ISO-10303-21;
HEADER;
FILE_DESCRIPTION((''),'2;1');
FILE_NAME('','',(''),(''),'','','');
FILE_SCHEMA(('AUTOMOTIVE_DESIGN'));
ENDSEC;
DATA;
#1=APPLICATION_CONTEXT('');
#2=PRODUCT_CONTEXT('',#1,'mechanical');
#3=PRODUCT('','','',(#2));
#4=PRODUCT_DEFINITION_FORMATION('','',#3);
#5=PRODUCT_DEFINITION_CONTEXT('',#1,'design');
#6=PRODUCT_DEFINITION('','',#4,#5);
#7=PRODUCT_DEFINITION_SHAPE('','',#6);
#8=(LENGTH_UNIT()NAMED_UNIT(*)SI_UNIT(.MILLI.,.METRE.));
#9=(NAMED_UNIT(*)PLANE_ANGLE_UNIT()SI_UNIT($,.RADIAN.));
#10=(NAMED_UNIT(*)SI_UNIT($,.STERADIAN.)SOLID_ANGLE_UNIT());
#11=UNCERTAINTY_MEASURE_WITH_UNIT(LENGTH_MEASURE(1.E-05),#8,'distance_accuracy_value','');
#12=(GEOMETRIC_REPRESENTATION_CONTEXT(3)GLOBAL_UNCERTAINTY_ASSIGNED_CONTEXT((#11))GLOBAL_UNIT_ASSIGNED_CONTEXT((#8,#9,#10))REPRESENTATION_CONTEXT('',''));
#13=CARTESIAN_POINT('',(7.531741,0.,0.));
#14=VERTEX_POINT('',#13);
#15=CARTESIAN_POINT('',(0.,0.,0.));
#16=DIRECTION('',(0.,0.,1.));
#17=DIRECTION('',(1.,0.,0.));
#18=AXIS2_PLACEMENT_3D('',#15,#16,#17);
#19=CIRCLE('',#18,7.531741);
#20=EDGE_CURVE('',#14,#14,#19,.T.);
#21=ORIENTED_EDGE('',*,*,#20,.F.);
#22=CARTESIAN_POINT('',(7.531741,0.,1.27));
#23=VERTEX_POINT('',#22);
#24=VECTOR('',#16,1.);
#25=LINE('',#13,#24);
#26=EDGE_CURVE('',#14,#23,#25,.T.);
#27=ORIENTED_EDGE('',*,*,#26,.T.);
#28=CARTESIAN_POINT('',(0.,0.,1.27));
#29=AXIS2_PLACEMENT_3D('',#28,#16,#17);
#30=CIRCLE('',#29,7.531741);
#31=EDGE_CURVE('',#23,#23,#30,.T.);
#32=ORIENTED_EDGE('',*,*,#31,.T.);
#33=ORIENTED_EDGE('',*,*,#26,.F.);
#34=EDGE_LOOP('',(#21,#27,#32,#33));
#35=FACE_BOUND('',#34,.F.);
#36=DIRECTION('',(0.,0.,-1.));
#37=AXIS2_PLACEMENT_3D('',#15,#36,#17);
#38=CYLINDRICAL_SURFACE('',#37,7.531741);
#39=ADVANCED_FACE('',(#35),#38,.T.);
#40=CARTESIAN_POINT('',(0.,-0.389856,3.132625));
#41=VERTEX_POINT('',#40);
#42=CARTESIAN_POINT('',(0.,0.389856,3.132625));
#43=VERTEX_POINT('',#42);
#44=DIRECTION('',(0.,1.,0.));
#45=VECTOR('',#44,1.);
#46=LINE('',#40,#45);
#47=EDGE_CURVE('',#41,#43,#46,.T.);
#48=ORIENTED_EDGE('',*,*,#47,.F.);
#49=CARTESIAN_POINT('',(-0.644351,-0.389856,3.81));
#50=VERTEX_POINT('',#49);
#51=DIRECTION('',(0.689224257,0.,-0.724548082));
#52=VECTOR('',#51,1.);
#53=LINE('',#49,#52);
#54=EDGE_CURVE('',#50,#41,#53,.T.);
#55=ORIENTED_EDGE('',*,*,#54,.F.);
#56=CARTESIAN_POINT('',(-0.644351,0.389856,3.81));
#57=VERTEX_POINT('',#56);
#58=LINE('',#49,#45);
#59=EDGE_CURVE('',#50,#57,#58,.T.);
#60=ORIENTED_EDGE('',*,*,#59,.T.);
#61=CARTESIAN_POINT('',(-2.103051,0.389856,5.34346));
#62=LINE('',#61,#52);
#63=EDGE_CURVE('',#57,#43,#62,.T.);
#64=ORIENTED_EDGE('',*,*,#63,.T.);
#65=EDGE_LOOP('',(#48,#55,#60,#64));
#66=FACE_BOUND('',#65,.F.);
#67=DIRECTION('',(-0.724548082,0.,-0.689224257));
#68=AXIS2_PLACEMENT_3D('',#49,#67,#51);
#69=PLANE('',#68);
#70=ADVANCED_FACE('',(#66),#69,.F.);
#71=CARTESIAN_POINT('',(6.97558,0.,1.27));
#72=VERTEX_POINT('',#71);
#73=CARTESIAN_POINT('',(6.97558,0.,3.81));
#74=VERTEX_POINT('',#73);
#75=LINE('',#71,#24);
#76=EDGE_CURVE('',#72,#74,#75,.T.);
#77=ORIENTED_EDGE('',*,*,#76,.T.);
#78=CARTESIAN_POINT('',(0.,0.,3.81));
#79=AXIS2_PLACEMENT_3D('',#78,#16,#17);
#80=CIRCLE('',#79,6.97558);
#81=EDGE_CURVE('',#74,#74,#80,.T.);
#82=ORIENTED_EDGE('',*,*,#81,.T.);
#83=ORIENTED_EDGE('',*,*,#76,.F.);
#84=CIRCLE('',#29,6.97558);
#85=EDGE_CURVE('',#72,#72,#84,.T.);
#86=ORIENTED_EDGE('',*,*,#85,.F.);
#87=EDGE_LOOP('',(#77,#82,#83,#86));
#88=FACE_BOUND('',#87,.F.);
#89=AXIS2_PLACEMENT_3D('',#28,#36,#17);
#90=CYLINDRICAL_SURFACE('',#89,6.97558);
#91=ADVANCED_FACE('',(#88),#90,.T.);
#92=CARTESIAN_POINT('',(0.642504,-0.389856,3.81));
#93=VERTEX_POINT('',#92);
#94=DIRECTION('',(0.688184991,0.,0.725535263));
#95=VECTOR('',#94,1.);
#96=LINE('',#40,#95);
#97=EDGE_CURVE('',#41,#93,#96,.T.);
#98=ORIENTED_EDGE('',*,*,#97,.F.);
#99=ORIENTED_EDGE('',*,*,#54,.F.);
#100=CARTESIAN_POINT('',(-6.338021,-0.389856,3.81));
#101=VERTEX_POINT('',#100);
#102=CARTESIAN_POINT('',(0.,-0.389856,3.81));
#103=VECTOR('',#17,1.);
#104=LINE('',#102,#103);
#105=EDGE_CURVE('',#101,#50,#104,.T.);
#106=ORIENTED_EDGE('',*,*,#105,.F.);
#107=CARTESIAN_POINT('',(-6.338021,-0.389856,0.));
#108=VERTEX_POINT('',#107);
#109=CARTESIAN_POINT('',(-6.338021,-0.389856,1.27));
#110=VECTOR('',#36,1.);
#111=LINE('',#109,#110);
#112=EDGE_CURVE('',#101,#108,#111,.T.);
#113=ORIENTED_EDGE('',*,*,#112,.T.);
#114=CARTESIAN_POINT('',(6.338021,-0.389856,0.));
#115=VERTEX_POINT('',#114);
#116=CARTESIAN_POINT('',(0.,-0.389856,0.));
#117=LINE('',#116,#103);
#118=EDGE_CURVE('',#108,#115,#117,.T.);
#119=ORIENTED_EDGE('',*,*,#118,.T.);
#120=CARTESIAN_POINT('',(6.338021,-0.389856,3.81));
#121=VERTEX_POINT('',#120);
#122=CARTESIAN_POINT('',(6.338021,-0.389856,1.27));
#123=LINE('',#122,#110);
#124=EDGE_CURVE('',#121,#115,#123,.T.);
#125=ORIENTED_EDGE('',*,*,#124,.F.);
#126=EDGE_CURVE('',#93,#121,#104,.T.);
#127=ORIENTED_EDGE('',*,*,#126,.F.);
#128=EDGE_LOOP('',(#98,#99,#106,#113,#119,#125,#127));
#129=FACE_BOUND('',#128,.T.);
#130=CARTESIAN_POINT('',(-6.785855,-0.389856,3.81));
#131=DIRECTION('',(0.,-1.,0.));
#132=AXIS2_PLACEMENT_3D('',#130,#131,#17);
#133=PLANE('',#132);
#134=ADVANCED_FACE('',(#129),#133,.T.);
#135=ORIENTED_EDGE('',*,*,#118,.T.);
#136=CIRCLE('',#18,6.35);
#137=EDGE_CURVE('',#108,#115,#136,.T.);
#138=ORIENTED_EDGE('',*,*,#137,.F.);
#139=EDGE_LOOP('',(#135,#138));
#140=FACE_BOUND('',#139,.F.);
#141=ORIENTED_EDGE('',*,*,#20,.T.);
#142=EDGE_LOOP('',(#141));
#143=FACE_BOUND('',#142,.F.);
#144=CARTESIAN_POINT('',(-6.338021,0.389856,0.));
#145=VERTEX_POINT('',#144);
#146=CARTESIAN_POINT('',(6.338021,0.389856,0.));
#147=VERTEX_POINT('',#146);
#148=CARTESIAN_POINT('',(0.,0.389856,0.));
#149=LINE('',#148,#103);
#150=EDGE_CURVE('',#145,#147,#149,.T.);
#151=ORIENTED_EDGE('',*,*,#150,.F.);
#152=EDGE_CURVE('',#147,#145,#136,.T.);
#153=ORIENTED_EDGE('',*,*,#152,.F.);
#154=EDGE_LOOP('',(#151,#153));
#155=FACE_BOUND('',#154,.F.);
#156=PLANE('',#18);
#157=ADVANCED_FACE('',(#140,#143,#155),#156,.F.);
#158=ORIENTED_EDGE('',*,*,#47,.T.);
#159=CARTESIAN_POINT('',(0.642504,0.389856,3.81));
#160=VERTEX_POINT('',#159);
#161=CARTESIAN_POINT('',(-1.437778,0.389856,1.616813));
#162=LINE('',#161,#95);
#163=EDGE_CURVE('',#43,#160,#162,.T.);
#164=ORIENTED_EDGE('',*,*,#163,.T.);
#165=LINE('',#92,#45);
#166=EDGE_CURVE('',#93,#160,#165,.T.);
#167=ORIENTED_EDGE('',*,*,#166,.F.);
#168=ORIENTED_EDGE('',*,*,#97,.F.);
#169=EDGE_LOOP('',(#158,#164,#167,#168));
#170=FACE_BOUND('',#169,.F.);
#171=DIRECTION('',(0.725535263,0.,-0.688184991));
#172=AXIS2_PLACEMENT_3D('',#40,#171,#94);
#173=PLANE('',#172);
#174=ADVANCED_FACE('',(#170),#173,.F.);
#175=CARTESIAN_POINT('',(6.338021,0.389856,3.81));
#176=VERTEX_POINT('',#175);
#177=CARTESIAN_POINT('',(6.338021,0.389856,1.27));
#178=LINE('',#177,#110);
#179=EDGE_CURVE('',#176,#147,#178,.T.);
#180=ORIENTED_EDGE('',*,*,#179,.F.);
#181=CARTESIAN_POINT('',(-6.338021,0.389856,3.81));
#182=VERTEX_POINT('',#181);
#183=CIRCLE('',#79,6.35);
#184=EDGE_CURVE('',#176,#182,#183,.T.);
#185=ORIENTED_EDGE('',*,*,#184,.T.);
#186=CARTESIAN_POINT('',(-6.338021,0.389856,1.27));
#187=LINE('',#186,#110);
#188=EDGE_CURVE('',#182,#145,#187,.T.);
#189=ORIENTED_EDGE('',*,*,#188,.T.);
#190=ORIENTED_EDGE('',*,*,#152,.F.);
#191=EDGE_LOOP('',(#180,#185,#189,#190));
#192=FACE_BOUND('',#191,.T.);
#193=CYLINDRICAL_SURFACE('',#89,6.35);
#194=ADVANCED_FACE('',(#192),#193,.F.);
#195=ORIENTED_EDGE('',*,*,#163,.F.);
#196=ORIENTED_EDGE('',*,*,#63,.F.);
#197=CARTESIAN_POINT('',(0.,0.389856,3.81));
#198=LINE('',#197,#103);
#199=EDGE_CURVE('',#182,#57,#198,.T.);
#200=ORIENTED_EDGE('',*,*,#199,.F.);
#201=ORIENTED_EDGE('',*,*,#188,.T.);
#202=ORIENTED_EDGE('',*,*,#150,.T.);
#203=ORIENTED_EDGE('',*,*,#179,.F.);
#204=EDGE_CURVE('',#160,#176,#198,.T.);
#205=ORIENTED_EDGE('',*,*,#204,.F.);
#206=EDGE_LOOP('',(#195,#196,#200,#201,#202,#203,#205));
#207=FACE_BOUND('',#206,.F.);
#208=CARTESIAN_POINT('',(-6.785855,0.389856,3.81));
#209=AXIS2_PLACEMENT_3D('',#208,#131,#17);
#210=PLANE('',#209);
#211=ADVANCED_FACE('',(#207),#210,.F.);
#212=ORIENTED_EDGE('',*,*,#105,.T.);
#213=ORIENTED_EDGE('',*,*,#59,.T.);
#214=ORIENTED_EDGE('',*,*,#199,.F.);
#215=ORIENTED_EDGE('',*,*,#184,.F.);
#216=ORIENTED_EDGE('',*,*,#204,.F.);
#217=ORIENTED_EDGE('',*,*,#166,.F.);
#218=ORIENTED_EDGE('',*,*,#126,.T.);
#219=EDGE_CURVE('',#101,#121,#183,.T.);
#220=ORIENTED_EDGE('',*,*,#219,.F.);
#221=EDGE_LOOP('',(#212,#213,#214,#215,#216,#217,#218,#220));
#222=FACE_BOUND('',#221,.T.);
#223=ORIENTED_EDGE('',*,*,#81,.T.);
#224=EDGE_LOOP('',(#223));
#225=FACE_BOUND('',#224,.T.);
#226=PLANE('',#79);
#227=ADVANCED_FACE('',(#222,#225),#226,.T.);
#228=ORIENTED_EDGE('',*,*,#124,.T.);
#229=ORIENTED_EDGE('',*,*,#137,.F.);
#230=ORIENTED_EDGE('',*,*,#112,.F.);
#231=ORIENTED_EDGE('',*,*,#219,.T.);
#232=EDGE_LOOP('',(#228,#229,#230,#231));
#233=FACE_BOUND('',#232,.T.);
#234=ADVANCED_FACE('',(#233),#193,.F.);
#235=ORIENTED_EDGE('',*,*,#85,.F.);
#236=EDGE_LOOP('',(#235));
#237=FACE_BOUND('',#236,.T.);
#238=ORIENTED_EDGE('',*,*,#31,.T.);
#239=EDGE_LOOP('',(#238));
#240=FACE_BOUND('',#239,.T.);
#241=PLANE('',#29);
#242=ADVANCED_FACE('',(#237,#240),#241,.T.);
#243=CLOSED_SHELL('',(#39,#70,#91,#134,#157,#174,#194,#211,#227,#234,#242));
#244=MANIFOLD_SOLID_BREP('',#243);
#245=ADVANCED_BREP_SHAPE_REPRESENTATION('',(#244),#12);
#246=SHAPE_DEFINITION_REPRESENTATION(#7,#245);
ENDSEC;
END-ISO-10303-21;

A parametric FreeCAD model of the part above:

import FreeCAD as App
import Part
import Sketcher
Q = App.Units.Quantity


def add_polygon(sketch, points):
    """Adds a closed chain of lines whose ends are joined by coincident constraints."""
    first, n = sketch.GeometryCount, len(points)
    for a, b in zip(points, points[1:] + points[:1]):
        sketch.addGeometry(Part.LineSegment(App.Vector(*a, 0), App.Vector(*b, 0)), False)
    for i in range(n):
        sketch.addConstraint(Sketcher.Constraint("Coincident", first + i, 2, first + (i + 1) % n, 1))

doc = App.newDocument("Part")
body = doc.addObject("PartDesign::Body", "Body")

# Sketch on XY plane
sketch1 = doc.addObject("Sketcher::SketchObject", "Sketch")
body.addObject(sketch1)
sketch1.AttachmentSupport = (doc.XY_Plane, [""])
sketch1.MapMode = "FlatFace"
sketch1.addGeometry([
    Part.Circle(App.Vector(0, 0, 0), App.Vector(0, 0, 1), 7.531741),
    Part.Circle(App.Vector(0, 0, 0), App.Vector(0, 0, 1), 6.35),
], False)
sketch1.addConstraint([
    Sketcher.Constraint("Coincident", 0, 3, -1, 1),
    Sketcher.Constraint("Coincident", 1, 3, -1, 1),
    Sketcher.Constraint("Diameter", 1, Q("0.5 in")),
    Sketcher.Constraint("Diameter", 0, Q("15.063482 mm")),
])
pad1 = doc.addObject("PartDesign::Pad", "Pad")
body.addObject(pad1)
pad1.Profile = sketch1
pad1.Length = Q("0.05 in")

# Sketch on XY plane
sketch2 = doc.addObject("Sketcher::SketchObject", "Sketch001")
body.addObject(sketch2)
sketch2.AttachmentSupport = (doc.XY_Plane, [""])
sketch2.MapMode = "FlatFace"
sketch2.AttachmentOffset = App.Placement(App.Vector(0, 0, 0.05 * 25.4), App.Rotation())
sketch2.addGeometry([
    Part.Circle(App.Vector(0, 0, 0), App.Vector(0, 0, 1), 6.97558),
    Part.Circle(App.Vector(0, 0, 0), App.Vector(0, 0, 1), 6.35),
], False)
sketch2.addConstraint([
    Sketcher.Constraint("Coincident", 0, 3, -1, 1),
    Sketcher.Constraint("Coincident", 1, 3, -1, 1),
    Sketcher.Constraint("Diameter", 1, Q("0.5 in")),
    Sketcher.Constraint("Diameter", 0, Q("13.95116 mm")),
])
pad2 = doc.addObject("PartDesign::Pad", "Pad001")
body.addObject(pad2)
pad2.Profile = sketch2
pad2.Length = Q("0.1 in")

# Sketch on XY plane
sketch3 = doc.addObject("Sketcher::SketchObject", "Sketch002")
body.addObject(sketch3)
sketch3.AttachmentSupport = (doc.XY_Plane, [""])
sketch3.MapMode = "FlatFace"
sketch3.AttachmentOffset = App.Placement(App.Vector(0, 0, 0.15 * 25.4), App.Rotation())
add_polygon(sketch3, [(-6.785855, 0.389856), (-6.785855, -0.389856), (6.785855, -0.389856), (6.785855, 0.389856)])  # lines 0-3
sketch3.addConstraint([
    Sketcher.Constraint("Vertical", 0),
    Sketcher.Constraint("Horizontal", 1),
    Sketcher.Constraint("Vertical", 2),
    Sketcher.Constraint("Horizontal", 3),
    Sketcher.Constraint("Symmetric", 0, 2, 2, 2, -1, 1),
    Sketcher.Constraint("DistanceX", 1, 1, 1, 2, Q("13.57171 mm")),
    Sketcher.Constraint("DistanceY", 0, 2, 0, 1, Q("0.779712 mm")),
])
pad3 = doc.addObject("PartDesign::Pad", "Pad002")
body.addObject(pad3)
pad3.Profile = sketch3
pad3.Length = Q("0.15 in")
pad3.Reversed = True

# Sketch on XZ plane
sketch4 = doc.addObject("Sketcher::SketchObject", "Sketch003")
body.addObject(sketch4)
sketch4.AttachmentSupport = (doc.XZ_Plane, [""])
sketch4.MapMode = "FlatFace"
sketch4.AttachmentOffset = App.Placement(App.Vector(0, 0, 0.389856), App.Rotation())
add_polygon(sketch4, [(0.642504, 3.81), (-0.644351, 3.81), (0, 3.132625)])  # lines 0-2
sketch4.addConstraint([
    Sketcher.Constraint("Horizontal", 0),
    Sketcher.Constraint("PointOnObject", 1, 2, -2),
    Sketcher.Constraint("DistanceY", -1, 1, 0, 2, Q("0.15 in")),
    Sketcher.Constraint("Distance", 2, Q("0.933621 mm")),
    Sketcher.Constraint("DistanceX", 0, 2, 0, 1, Q("1.286855 mm")),
    Sketcher.Constraint("DistanceX", 0, 2, -1, 1, Q("0.644351 mm")),
])
pocket1 = doc.addObject("PartDesign::Pocket", "Pocket")
body.addObject(pocket1)
pocket1.Profile = sketch4
pocket1.Length = Q("0.1 in")

doc.recompute()
